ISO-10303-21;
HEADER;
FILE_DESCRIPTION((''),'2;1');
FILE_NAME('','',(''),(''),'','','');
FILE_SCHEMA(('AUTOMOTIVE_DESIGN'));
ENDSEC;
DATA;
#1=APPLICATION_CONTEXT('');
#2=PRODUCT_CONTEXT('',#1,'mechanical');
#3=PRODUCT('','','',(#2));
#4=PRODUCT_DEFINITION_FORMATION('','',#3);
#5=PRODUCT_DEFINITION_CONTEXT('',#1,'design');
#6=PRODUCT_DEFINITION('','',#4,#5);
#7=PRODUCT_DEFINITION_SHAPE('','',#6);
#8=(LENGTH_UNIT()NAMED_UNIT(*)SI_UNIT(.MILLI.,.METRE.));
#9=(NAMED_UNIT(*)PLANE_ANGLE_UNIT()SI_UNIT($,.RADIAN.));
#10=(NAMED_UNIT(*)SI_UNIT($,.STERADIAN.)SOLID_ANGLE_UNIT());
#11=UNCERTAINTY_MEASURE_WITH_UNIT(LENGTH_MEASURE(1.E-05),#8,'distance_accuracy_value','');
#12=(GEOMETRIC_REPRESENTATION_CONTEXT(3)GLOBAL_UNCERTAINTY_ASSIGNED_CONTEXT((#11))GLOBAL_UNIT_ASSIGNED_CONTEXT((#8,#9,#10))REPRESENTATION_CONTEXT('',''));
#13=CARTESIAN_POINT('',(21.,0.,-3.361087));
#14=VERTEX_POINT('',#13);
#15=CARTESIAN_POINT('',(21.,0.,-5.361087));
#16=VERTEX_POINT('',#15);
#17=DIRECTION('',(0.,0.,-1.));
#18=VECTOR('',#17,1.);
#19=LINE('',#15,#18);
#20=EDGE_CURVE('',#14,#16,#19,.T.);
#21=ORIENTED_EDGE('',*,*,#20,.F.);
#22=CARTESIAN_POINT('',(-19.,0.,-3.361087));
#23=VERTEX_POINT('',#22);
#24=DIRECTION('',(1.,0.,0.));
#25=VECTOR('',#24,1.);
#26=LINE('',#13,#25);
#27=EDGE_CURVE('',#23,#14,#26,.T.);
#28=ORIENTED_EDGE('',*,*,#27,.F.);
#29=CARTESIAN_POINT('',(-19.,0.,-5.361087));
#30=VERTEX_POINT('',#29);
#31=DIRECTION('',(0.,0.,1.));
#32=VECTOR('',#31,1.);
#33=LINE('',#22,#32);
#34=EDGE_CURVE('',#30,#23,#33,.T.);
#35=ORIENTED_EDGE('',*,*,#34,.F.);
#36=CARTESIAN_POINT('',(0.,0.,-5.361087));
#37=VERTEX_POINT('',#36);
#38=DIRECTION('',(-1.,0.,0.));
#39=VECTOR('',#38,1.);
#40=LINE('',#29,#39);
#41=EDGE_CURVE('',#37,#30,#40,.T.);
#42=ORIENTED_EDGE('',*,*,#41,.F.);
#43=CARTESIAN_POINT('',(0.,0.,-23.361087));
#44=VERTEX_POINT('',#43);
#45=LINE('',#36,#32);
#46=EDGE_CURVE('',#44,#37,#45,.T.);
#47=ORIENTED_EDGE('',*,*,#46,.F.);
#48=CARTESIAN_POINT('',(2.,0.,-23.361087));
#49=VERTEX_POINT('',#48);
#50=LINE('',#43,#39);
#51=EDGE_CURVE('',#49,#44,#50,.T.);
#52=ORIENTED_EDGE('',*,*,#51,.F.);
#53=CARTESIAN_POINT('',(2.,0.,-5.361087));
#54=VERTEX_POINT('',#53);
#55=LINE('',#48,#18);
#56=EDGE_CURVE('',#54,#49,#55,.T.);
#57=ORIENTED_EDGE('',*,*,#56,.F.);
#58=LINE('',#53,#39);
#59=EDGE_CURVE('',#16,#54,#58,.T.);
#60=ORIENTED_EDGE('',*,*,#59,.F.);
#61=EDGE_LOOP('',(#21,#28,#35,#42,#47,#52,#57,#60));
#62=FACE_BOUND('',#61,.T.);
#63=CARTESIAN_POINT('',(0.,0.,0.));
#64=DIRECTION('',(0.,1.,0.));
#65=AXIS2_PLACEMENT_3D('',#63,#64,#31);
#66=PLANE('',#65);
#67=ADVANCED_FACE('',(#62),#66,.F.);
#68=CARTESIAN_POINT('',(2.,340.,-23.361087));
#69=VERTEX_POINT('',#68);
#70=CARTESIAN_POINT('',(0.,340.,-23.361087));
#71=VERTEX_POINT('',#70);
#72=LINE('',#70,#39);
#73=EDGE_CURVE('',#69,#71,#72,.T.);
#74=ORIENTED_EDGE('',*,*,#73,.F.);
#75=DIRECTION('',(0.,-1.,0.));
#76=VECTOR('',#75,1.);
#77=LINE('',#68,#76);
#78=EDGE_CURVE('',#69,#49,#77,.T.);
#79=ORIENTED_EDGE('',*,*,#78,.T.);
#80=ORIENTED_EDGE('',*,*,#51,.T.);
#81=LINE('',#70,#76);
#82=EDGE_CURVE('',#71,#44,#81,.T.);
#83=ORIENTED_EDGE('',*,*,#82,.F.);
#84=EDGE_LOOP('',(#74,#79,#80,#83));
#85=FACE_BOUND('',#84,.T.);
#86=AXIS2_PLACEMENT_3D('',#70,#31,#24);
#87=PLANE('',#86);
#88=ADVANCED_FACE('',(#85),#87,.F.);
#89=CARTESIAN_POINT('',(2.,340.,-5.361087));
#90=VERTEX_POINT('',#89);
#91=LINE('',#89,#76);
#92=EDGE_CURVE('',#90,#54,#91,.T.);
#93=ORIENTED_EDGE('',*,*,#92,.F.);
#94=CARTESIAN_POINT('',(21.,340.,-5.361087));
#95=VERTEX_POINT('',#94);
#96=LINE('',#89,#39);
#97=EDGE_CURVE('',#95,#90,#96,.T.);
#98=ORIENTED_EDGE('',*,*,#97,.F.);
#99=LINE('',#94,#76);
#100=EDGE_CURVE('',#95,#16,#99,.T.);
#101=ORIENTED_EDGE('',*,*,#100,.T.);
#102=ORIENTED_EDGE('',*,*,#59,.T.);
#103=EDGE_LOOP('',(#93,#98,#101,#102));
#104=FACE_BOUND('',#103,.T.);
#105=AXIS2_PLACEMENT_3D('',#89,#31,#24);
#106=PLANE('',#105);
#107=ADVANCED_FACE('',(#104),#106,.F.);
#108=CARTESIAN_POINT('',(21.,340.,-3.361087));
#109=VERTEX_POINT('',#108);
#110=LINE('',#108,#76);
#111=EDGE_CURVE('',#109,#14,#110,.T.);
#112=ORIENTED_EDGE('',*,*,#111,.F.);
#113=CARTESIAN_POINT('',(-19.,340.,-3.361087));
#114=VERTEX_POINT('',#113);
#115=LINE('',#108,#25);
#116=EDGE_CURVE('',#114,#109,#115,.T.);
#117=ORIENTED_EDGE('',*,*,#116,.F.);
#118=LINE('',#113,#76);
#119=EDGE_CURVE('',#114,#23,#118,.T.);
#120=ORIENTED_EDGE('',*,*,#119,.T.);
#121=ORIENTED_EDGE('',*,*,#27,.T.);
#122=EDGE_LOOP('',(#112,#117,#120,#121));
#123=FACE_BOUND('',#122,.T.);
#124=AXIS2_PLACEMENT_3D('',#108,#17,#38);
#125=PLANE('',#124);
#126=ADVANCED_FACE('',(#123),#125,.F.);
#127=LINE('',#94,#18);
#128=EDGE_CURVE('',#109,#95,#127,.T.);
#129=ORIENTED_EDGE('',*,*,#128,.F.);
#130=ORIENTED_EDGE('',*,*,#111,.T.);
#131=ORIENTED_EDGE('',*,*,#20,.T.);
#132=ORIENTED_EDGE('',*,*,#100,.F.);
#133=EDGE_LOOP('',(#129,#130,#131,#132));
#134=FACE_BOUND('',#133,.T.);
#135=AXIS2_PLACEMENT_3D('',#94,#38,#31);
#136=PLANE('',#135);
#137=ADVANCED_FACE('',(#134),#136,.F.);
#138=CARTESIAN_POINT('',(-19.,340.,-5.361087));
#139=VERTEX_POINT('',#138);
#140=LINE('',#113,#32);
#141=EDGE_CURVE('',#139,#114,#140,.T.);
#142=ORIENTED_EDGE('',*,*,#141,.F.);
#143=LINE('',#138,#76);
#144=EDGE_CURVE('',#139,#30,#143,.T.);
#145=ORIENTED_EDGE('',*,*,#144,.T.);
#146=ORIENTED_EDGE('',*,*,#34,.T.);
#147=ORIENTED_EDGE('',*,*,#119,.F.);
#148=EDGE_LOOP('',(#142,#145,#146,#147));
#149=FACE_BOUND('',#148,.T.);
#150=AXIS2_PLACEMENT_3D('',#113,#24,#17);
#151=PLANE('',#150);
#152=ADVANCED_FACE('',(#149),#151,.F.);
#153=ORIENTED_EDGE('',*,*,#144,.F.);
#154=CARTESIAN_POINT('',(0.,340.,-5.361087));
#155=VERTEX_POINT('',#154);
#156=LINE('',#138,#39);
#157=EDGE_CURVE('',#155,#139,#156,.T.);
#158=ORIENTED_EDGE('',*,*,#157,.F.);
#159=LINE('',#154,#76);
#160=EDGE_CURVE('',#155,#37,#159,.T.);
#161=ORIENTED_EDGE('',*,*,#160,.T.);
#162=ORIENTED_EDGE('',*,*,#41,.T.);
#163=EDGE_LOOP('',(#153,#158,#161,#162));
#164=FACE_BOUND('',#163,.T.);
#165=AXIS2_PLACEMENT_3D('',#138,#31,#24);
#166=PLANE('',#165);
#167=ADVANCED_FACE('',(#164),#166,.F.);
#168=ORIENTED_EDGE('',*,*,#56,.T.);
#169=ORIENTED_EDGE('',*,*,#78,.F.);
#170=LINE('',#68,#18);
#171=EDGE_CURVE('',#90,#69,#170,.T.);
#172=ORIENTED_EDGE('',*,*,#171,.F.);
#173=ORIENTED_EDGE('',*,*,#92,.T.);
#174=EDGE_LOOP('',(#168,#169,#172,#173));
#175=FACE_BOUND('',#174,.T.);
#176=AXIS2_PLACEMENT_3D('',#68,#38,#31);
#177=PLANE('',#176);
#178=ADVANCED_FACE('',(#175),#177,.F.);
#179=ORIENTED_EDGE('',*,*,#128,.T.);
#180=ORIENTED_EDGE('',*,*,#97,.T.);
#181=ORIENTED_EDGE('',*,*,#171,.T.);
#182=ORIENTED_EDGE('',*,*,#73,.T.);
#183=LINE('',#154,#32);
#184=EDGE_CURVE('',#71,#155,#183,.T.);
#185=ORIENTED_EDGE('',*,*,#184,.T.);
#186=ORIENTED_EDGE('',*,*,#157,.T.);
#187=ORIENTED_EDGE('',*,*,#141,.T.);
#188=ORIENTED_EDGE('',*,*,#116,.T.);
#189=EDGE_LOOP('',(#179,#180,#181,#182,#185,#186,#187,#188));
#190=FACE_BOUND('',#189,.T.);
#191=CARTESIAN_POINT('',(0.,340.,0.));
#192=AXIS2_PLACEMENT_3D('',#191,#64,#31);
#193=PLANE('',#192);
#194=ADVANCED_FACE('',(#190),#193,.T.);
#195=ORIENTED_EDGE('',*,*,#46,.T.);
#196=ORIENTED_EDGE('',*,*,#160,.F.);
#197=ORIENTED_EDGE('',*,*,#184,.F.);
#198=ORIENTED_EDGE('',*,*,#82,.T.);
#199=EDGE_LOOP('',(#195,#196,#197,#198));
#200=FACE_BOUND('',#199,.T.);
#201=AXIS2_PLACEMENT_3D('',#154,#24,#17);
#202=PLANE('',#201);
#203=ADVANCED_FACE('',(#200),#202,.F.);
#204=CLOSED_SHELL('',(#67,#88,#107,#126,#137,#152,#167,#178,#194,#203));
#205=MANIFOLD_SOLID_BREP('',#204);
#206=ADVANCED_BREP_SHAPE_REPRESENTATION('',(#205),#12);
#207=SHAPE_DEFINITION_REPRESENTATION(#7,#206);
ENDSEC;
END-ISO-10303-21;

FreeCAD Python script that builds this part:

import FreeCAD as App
import Part
import Sketcher
from FreeCAD import Vector
Q = App.Units.Quantity

doc = App.newDocument("Part")
params = doc.addObject("Spreadsheet::Sheet", "Params")
for row, (alias, value) in enumerate([
    ("sketch1_width", "19 mm"),
    ("sketch1_width2", "40 mm"),
    ("sketch1_height", "18 mm"),
    ("pad1_length", "340 mm"),
], start=1):
    params.set(f"A{row}", alias)
    params.set(f"B{row}", "=" + value)
    params.setAlias(f"B{row}", alias)

body = doc.addObject("PartDesign::Body", "Body")

# Sketch on XZ plane
sketch1 = doc.addObject("Sketcher::SketchObject", "Sketch")
body.addObject(sketch1)
sketch1.AttachmentSupport = (doc.XZ_Plane, [""])
sketch1.MapMode = "FlatFace"
sketch1.addGeometry([
    Part.LineSegment(Vector(0, -23.4, 0), Vector(0, -5.4, 0)),  # 0
    Part.LineSegment(Vector(0, -5.4, 0), Vector(-19, -5.4, 0)),  # 1
    Part.LineSegment(Vector(-19, -5.4, 0), Vector(-19, -3.4, 0)),  # 2
    Part.LineSegment(Vector(-19, -3.4, 0), Vector(21, -3.4, 0)),  # 3
    Part.LineSegment(Vector(21, -3.4, 0), Vector(21, -5.4, 0)),  # 4
    Part.LineSegment(Vector(21, -5.4, 0), Vector(2, -5.4, 0)),  # 5
    Part.LineSegment(Vector(2, -5.4, 0), Vector(2, -23.4, 0)),  # 6
    Part.LineSegment(Vector(2, -23.4, 0), Vector(0, -23.4, 0)),  # 7
], False)
sketch1.addConstraint([
    Sketcher.Constraint("Coincident", 0, 2, 1, 1),
    Sketcher.Constraint("Coincident", 1, 2, 2, 1),
    Sketcher.Constraint("Coincident", 2, 2, 3, 1),
    Sketcher.Constraint("Coincident", 3, 2, 4, 1),
    Sketcher.Constraint("Coincident", 4, 2, 5, 1),
    Sketcher.Constraint("Coincident", 5, 2, 6, 1),
    Sketcher.Constraint("Coincident", 6, 2, 7, 1),
    Sketcher.Constraint("Coincident", 7, 2, 0, 1),
    Sketcher.Constraint("Vertical", 0),
    Sketcher.Constraint("Horizontal", 1),
    Sketcher.Constraint("Vertical", 2),
    Sketcher.Constraint("Horizontal", 3),
    Sketcher.Constraint("Vertical", 4),
    Sketcher.Constraint("Horizontal", 5),
    Sketcher.Constraint("Vertical", 6),
    Sketcher.Constraint("Horizontal", 7),
    Sketcher.Constraint("PointOnObject", 0, 2, -2),
    Sketcher.Constraint("Horizontal", 1, 2, 4, 2),
    Sketcher.Constraint("Equal", 1, 5),
    Sketcher.Constraint("Equal", 7, 2),
    Sketcher.Constraint("DistanceX", 1, 2, 1, 1, Q("19 mm")),
    Sketcher.Constraint("DistanceX", 3, 1, 3, 2, Q("40 mm")),
    Sketcher.Constraint("DistanceY", 0, 1, 0, 2, Q("18 mm")),
    Sketcher.Constraint("DistanceY", 0, 2, -1, 1, Q("5.361087 mm")),
])
sketch1.setExpression("Constraints[20]", "Params.sketch1_width")
sketch1.setExpression("Constraints[21]", "Params.sketch1_width2")
sketch1.setExpression("Constraints[22]", "Params.sketch1_height")
pad1 = doc.addObject("PartDesign::Pad", "Pad")
body.addObject(pad1)
pad1.Profile = sketch1
pad1.setExpression("Length", "Params.pad1_length")
pad1.Reversed = True

doc.recompute()
